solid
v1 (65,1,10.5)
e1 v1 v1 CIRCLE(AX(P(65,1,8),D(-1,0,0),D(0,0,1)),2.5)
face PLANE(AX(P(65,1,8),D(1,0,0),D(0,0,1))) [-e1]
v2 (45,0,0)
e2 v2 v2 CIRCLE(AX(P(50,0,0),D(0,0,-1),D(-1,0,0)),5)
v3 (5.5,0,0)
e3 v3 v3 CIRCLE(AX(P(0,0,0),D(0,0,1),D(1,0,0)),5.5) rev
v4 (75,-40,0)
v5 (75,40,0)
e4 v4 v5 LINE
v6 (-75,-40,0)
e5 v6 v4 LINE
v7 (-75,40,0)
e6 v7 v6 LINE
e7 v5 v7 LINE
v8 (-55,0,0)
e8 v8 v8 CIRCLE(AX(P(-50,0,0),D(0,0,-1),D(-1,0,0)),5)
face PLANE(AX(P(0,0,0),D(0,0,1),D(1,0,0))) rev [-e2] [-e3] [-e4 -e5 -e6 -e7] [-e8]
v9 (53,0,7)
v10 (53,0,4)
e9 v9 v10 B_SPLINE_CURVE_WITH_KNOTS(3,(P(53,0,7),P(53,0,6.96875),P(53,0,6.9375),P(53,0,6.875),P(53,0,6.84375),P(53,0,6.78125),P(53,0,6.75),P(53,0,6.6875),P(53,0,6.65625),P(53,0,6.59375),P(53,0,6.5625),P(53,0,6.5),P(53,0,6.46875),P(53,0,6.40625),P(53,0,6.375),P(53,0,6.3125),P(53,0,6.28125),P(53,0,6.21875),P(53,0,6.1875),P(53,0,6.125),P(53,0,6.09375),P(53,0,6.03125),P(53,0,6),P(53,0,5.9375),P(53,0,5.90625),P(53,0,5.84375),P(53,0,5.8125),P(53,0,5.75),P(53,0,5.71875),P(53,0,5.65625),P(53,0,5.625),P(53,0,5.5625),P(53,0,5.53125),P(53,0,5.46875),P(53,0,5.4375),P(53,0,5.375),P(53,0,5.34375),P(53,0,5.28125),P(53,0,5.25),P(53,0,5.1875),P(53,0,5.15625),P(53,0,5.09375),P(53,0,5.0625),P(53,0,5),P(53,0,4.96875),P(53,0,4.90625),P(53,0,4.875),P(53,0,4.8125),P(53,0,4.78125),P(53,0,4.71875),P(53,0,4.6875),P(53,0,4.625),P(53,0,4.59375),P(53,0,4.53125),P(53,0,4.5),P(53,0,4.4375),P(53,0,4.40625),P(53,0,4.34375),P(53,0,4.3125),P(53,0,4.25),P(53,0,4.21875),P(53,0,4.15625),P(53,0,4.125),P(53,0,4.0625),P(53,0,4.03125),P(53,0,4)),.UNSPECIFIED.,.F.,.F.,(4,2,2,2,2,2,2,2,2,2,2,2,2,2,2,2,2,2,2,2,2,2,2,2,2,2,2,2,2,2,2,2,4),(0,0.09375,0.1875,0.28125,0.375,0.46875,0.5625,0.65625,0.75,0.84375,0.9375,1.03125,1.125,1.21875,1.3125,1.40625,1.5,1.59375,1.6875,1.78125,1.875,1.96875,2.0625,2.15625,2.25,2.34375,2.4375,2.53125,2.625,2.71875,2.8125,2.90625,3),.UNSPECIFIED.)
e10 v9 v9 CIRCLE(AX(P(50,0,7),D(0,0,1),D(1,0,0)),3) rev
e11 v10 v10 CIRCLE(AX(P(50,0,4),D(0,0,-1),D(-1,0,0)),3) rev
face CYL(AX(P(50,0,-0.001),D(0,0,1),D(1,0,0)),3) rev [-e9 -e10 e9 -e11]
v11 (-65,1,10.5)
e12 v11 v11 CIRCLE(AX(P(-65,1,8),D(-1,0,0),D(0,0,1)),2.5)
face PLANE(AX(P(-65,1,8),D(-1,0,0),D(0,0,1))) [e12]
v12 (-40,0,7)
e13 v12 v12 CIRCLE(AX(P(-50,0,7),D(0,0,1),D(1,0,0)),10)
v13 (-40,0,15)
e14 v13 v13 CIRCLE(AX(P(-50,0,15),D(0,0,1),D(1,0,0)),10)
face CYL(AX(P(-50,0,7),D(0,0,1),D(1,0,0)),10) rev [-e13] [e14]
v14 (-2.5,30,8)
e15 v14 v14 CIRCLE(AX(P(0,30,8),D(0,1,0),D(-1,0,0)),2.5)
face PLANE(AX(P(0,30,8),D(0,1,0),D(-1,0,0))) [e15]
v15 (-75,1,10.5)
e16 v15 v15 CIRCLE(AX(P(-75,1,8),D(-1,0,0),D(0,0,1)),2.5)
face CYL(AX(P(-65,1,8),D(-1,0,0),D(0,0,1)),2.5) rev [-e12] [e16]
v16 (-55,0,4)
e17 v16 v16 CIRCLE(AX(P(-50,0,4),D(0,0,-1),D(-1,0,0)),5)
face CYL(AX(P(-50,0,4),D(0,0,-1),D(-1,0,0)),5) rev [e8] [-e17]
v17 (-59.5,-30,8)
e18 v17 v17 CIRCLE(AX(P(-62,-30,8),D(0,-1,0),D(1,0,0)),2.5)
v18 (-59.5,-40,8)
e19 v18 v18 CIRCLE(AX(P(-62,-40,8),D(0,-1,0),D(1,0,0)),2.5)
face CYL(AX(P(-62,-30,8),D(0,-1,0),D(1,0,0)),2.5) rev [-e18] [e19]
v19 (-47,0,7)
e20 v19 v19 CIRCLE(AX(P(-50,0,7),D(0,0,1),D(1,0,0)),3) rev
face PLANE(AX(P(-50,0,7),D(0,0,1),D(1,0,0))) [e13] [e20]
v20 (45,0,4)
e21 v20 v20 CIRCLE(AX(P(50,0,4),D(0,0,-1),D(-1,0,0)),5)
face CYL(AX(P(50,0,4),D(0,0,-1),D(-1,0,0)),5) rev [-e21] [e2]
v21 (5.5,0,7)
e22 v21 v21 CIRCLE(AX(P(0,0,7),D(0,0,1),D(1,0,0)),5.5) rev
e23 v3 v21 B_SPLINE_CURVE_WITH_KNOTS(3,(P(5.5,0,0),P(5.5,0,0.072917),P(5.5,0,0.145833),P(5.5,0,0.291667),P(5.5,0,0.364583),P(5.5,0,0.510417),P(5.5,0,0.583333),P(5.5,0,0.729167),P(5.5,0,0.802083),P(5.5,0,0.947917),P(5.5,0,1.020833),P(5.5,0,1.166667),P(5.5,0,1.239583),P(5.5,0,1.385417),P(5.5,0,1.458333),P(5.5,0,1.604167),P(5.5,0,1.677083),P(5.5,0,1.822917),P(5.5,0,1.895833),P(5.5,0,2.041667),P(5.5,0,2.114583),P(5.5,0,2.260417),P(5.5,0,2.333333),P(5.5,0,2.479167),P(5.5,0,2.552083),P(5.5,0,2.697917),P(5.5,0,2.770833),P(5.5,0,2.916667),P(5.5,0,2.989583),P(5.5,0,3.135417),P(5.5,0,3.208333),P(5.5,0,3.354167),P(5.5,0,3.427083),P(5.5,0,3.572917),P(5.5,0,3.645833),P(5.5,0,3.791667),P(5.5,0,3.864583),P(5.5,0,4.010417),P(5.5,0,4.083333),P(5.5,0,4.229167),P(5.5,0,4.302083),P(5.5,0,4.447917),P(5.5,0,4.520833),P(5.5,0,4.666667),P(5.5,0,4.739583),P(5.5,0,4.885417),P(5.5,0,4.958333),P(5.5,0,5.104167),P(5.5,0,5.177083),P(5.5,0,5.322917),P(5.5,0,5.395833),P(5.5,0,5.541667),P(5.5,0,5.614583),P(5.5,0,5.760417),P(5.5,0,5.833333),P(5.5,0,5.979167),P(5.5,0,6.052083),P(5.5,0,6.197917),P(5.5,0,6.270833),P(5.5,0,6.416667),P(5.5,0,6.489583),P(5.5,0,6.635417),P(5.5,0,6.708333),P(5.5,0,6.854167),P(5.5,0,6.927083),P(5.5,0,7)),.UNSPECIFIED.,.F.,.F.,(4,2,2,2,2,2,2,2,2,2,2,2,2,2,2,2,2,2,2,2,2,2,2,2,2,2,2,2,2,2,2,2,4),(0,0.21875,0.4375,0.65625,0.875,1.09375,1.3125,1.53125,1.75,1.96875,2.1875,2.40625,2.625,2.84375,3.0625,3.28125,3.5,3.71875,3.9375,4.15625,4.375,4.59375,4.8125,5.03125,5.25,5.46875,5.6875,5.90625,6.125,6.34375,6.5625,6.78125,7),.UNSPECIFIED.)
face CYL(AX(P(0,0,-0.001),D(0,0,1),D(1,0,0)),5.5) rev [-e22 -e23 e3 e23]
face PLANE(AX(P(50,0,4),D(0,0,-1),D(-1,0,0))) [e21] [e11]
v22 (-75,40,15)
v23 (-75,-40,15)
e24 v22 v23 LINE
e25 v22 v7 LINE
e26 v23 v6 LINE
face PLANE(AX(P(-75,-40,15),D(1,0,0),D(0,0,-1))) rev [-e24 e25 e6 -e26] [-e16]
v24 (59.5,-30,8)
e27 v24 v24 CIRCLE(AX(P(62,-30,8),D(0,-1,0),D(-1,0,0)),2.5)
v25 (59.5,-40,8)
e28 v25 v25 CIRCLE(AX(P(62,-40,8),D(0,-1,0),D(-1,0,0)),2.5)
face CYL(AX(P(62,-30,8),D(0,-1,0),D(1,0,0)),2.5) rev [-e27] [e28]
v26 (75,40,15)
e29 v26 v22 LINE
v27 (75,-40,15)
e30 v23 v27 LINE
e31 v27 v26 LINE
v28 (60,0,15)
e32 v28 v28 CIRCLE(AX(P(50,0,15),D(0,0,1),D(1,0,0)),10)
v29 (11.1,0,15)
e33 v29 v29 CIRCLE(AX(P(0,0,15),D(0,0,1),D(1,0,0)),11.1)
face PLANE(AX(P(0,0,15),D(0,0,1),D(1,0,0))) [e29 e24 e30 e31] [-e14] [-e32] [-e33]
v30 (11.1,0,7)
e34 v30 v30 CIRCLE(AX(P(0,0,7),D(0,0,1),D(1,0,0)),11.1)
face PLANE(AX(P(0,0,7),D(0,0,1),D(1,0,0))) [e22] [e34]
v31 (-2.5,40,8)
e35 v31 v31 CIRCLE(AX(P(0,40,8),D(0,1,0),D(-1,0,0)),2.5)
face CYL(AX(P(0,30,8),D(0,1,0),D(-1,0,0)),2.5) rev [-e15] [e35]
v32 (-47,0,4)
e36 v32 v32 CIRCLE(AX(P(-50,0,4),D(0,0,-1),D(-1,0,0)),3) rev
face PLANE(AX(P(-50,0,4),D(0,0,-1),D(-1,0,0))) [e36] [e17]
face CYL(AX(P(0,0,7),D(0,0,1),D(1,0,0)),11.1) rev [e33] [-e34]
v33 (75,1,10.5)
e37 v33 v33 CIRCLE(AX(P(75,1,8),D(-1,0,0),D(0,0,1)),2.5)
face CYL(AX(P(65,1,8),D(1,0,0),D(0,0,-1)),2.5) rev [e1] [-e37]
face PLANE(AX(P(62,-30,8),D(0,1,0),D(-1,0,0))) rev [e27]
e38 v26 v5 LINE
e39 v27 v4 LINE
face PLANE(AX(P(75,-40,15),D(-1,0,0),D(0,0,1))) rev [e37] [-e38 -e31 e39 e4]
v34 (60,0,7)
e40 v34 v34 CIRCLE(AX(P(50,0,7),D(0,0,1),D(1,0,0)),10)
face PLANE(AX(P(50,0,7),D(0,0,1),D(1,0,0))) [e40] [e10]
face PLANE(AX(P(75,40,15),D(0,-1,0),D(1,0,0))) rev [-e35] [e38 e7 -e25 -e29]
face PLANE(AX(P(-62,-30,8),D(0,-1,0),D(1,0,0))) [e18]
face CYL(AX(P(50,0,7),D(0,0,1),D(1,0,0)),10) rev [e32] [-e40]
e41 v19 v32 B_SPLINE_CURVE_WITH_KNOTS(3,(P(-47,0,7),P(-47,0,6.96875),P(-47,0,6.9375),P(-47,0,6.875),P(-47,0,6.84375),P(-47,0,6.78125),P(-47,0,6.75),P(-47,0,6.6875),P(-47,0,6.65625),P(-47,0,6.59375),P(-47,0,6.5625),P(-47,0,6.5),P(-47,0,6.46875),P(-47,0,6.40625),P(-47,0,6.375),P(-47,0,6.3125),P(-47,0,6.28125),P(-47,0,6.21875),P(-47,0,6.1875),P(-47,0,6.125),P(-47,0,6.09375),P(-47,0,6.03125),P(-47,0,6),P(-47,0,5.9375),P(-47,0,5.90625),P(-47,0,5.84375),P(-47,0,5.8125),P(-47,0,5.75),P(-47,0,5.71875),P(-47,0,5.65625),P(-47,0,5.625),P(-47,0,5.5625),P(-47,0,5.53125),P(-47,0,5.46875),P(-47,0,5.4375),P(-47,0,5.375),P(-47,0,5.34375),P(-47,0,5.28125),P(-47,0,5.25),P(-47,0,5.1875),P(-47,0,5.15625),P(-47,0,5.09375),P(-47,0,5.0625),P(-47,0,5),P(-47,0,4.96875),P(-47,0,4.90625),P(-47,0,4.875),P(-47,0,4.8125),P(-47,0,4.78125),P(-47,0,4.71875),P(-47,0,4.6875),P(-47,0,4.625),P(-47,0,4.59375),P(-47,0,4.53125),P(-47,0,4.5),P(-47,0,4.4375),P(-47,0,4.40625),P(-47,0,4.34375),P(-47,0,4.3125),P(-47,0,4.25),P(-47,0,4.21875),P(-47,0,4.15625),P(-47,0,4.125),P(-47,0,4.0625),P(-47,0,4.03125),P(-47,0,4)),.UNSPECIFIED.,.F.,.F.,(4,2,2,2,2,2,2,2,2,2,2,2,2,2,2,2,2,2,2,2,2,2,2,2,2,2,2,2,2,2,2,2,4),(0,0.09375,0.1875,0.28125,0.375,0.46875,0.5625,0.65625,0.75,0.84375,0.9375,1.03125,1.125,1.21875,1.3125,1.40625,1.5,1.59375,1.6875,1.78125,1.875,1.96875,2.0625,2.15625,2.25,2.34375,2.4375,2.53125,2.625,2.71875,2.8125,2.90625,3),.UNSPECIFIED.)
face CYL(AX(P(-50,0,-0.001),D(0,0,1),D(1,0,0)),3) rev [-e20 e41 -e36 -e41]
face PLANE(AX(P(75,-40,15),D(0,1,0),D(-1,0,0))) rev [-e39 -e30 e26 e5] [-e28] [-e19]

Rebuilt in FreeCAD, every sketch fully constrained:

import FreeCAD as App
import Part
import Sketcher
from FreeCAD import Vector
Q = App.Units.Quantity


def add_polygon(sketch, points):
    """Adds a closed chain of lines whose ends are joined by coincident constraints."""
    first, n = sketch.GeometryCount, len(points)
    for a, b in zip(points, points[1:] + points[:1]):
        sketch.addGeometry(Part.LineSegment(App.Vector(*a, 0), App.Vector(*b, 0)), False)
    for i in range(n):
        sketch.addConstraint(Sketcher.Constraint("Coincident", first + i, 2, first + (i + 1) % n, 1))

doc = App.newDocument("Part")
body = doc.addObject("PartDesign::Body", "Body")

sketch1 = doc.addObject("Sketcher::SketchObject", "Sketch")
body.addObject(sketch1)
sketch1.AttachmentSupport = (doc.XY_Plane, [""])
sketch1.MapMode = "FlatFace"
add_polygon(sketch1, [(-75, 40), (-75, -40), (75, -40), (75, 40)])
sketch1.addConstraint([
    Sketcher.Constraint("Vertical", 0),
    Sketcher.Constraint("Horizontal", 1),
    Sketcher.Constraint("Vertical", 2),
    Sketcher.Constraint("Horizontal", 3),
    Sketcher.Constraint("Symmetric", 0, 2, 2, 2, -1, 1),
    Sketcher.Constraint("DistanceX", 1, 1, 1, 2, Q("150 mm")),
    Sketcher.Constraint("DistanceY", 0, 2, 0, 1, Q("80 mm")),
])
pad1 = doc.addObject("PartDesign::Pad", "Pad")
body.addObject(pad1)
pad1.Profile = sketch1
pad1.Length = 15

sketch2 = doc.addObject("Sketcher::SketchObject", "Sketch001")
body.addObject(sketch2)
sketch2.AttachmentSupport = (doc.XY_Plane, [""])
sketch2.MapMode = "FlatFace"
sketch2.AttachmentOffset = App.Placement(Vector(0, 0, 15), App.Rotation())
sketch2.addGeometry(Part.Circle(Vector(-50, 0, 0), Vector(0, 0, 1), 3), False)
sketch2.addConstraint([
    Sketcher.Constraint("PointOnObject", 0, 3, -1),
    Sketcher.Constraint("Diameter", 0, Q("6 mm")),
    Sketcher.Constraint("DistanceX", 0, 3, -1, 1, Q("50 mm")),
])
pocket1 = doc.addObject("PartDesign::Pocket", "Pocket")
body.addObject(pocket1)
pocket1.Profile = sketch2
pocket1.Type = "UpToFirst"

sketch3 = doc.addObject("Sketcher::SketchObject", "Sketch002")
body.addObject(sketch3)
sketch3.AttachmentSupport = (doc.XY_Plane, [""])
sketch3.MapMode = "FlatFace"
sketch3.AttachmentOffset = App.Placement(Vector(0, 0, 15), App.Rotation())
sketch3.addGeometry(Part.Circle(Vector(50, 0, 0), Vector(0, 0, 1), 3), False)
sketch3.addConstraint([
    Sketcher.Constraint("PointOnObject", 0, 3, -1),
    Sketcher.Constraint("Diameter", 0, Q("6 mm")),
    Sketcher.Constraint("DistanceX", -1, 1, 0, 3, Q("50 mm")),
])
pocket2 = doc.addObject("PartDesign::Pocket", "Pocket001")
body.addObject(pocket2)
pocket2.Profile = sketch3
pocket2.Type = "UpToFirst"

sketch4 = doc.addObject("Sketcher::SketchObject", "Sketch003")
body.addObject(sketch4)
sketch4.AttachmentSupport = (doc.XY_Plane, [""])
sketch4.MapMode = "FlatFace"
sketch4.AttachmentOffset = App.Placement(Vector(0, 0, 15), App.Rotation())
sketch4.addGeometry(Part.Circle(Vector(0, 0, 0), Vector(0, 0, 1), 6), False)
sketch4.addConstraint([
    Sketcher.Constraint("Coincident", 0, 3, -1, 1),
    Sketcher.Constraint("Diameter", 0, Q("11 mm")),
])
pocket3 = doc.addObject("PartDesign::Pocket", "Pocket002")
body.addObject(pocket3)
pocket3.Profile = sketch4
pocket3.Type = "UpToFirst"

sketch5 = doc.addObject("Sketcher::SketchObject", "Sketch004")
body.addObject(sketch5)
sketch5.AttachmentSupport = (doc.XY_Plane, [""])
sketch5.MapMode = "FlatFace"
sketch5.AttachmentOffset = App.Placement(Vector(0, 0, 15), App.Rotation())
sketch5.addGeometry([
    Part.Circle(Vector(0, 0, 0), Vector(0, 0, 1), 11),
    Part.Circle(Vector(-50, 0, 0), Vector(0, 0, 1), 10),
    Part.Circle(Vector(50, 0, 0), Vector(0, 0, 1), 10),
], False)
sketch5.addConstraint([
    Sketcher.Constraint("Coincident", 0, 3, -1, 1),
    Sketcher.Constraint("Equal", 1, 2),
    Sketcher.Constraint("Symmetric", 1, 3, 2, 3, -1, 1),
    Sketcher.Constraint("PointOnObject", 1, 3, -1),
    Sketcher.Constraint("Diameter", 1, Q("20 mm")),
    Sketcher.Constraint("Diameter", 0, Q("22.2 mm")),
    Sketcher.Constraint("DistanceX", 1, 3, -1, 1, Q("50 mm")),
])
pocket4 = doc.addObject("PartDesign::Pocket", "Pocket003")
body.addObject(pocket4)
pocket4.Profile = sketch5
pocket4.Length = 8

sketch6 = doc.addObject("Sketcher::SketchObject", "Sketch005")
body.addObject(sketch6)
sketch6.AttachmentSupport = (doc.XY_Plane, [""])
sketch6.MapMode = "FlatFace"
sketch6.addGeometry([
    Part.Circle(Vector(50, 0, 0), Vector(0, 0, 1), 5),
    Part.Circle(Vector(-50, 0, 0), Vector(0, 0, 1), 5),
], False)
sketch6.addConstraint([
    Sketcher.Constraint("Equal", 0, 1),
    Sketcher.Constraint("Symmetric", 0, 3, 1, 3, -1, 1),
    Sketcher.Constraint("PointOnObject", 0, 3, -1),
    Sketcher.Constraint("Diameter", 0, Q("10 mm")),
    Sketcher.Constraint("DistanceX", -1, 1, 0, 3, Q("50 mm")),
])
pocket5 = doc.addObject("PartDesign::Pocket", "Pocket004")
body.addObject(pocket5)
pocket5.Profile = sketch6
pocket5.Length = 4
pocket5.Reversed = True

sketch7 = doc.addObject("Sketcher::SketchObject", "Sketch006")
body.addObject(sketch7)
sketch7.AttachmentSupport = (doc.YZ_Plane, [""])
sketch7.MapMode = "FlatFace"
sketch7.AttachmentOffset = App.Placement(Vector(0, 0, -75), App.Rotation())
sketch7.addGeometry(Part.Circle(Vector(1, 8, 0), Vector(0, 0, 1), 2.5), False)
sketch7.addConstraint([
    Sketcher.Constraint("Diameter", 0, Q("5 mm")),
    Sketcher.Constraint("DistanceX", -1, 1, 0, 3, Q("1 mm")),
    Sketcher.Constraint("DistanceY", -1, 1, 0, 3, Q("8 mm")),
])
pocket6 = doc.addObject("PartDesign::Pocket", "Pocket005")
body.addObject(pocket6)
pocket6.Profile = sketch7
pocket6.Length = 10
pocket6.Reversed = True
doc.recompute()

mirrored = doc.addObject("PartDesign::Mirrored", "Mirrored")
body.addObject(mirrored)
mirrored.Originals = [pocket6]
mirrored.MirrorPlane = (doc.YZ_Plane, [""])
body.Tip = mirrored

sketch8 = doc.addObject("Sketcher::SketchObject", "Sketch007")
body.addObject(sketch8)
sketch8.AttachmentSupport = (doc.XZ_Plane, [""])
sketch8.MapMode = "FlatFace"
sketch8.AttachmentOffset = App.Placement(Vector(0, 0, 40), App.Rotation())
sketch8.addGeometry([
    Part.Circle(Vector(-62, 8, 0), Vector(0, 0, 1), 2.5),
    Part.Circle(Vector(62, 8, 0), Vector(0, 0, 1), 2.5),
], False)
sketch8.addConstraint([
    Sketcher.Constraint("Equal", 0, 1),
    Sketcher.Constraint("Symmetric", 0, 3, 1, 3, -2),
    Sketcher.Constraint("Diameter", 0, Q("5 mm")),
    Sketcher.Constraint("DistanceX", 0, 3, -1, 1, Q("62 mm")),
    Sketcher.Constraint("DistanceY", -1, 1, 0, 3, Q("8 mm")),
])
pocket7 = doc.addObject("PartDesign::Pocket", "Pocket006")
body.addObject(pocket7)
pocket7.Profile = sketch8
pocket7.Length = 10

sketch9 = doc.addObject("Sketcher::SketchObject", "Sketch008")
body.addObject(sketch9)
sketch9.AttachmentSupport = (doc.XZ_Plane, [""])
sketch9.MapMode = "FlatFace"
sketch9.AttachmentOffset = App.Placement(Vector(0, 0, -40), App.Rotation())
sketch9.addGeometry(Part.Circle(Vector(0, 8, 0), Vector(0, 0, 1), 2.5), False)
sketch9.addConstraint([
    Sketcher.Constraint("PointOnObject", 0, 3, -2),
    Sketcher.Constraint("Diameter", 0, Q("5 mm")),
    Sketcher.Constraint("DistanceY", -1, 1, 0, 3, Q("8 mm")),
])
pocket8 = doc.addObject("PartDesign::Pocket", "Pocket007")
body.addObject(pocket8)
pocket8.Profile = sketch9
pocket8.Length = 10
pocket8.Reversed = True

doc.recompute()
